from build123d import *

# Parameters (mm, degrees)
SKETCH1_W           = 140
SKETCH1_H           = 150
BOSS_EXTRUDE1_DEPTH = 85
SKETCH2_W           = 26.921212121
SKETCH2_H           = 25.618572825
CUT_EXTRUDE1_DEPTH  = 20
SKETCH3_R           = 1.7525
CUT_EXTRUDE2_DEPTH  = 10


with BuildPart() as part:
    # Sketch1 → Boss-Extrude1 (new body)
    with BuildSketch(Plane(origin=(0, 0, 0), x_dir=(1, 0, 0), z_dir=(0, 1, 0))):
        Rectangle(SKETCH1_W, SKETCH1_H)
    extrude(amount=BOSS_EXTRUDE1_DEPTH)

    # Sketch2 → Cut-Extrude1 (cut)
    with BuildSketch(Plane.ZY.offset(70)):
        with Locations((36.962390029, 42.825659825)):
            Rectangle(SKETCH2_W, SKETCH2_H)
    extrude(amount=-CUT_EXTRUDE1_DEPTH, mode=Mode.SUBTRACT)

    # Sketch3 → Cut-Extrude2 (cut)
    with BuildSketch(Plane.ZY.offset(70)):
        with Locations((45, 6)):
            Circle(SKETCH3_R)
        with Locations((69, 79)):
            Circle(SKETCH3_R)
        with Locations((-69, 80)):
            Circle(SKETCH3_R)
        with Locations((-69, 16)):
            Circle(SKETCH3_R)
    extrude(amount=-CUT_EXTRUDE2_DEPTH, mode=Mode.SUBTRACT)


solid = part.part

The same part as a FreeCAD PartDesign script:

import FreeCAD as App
import Part
import Sketcher

doc = App.newDocument("Part")
body = doc.addObject("PartDesign::Body", "Body")

# Sketch on XZ plane
sketch1 = body.newObject("Sketcher::SketchObject", "Sketch")
sketch1.AttachmentSupport = (doc.getObject("XZ_Plane"), [""])
sketch1.MapMode = "FlatFace"
sketch1.addGeometry([
    Part.LineSegment(App.Vector(-70, -75, 0), App.Vector(-70, 75, 0)),
    Part.LineSegment(App.Vector(-70, 75, 0), App.Vector(70, 75, 0)),
    Part.LineSegment(App.Vector(70, 75, 0), App.Vector(70, -75, 0)),
    Part.LineSegment(App.Vector(70, -75, 0), App.Vector(-70, -75, 0)),
], False)
sketch1.addConstraint([
    Sketcher.Constraint("Coincident", 0, 2, 1, 1),
    Sketcher.Constraint("Coincident", 1, 2, 2, 1),
    Sketcher.Constraint("Coincident", 2, 2, 3, 1),
    Sketcher.Constraint("Coincident", 3, 2, 0, 1),
    Sketcher.Constraint("Vertical", 0),
    Sketcher.Constraint("Horizontal", 1),
    Sketcher.Constraint("Vertical", 2),
    Sketcher.Constraint("Horizontal", 3),
    Sketcher.Constraint("Symmetric", 0, 2, 2, 2, -1, 1),
    Sketcher.Constraint("DistanceX", 1, 1, 1, 2, 140.0),
    Sketcher.Constraint("DistanceY", 0, 1, 0, 2, 150.0),
])
pad1 = body.newObject("PartDesign::Pad", "Pad")
pad1.Profile = sketch1
pad1.Length = 85
pad1.Reversed = True

# Sketch on YZ plane
sketch2 = body.newObject("Sketcher::SketchObject", "Sketch001")
sketch2.AttachmentSupport = (doc.getObject("YZ_Plane"), [""])
sketch2.MapMode = "FlatFace"
sketch2.AttachmentOffset = App.Placement(App.Vector(0, 0, -70), App.Rotation())
sketch2.addGeometry([
    Part.LineSegment(App.Vector(55.634946, 23.501784, 0), App.Vector(30.016373, 23.501784, 0)),
    Part.LineSegment(App.Vector(30.016373, 23.501784, 0), App.Vector(30.016373, 50.422996, 0)),
    Part.LineSegment(App.Vector(30.016373, 50.422996, 0), App.Vector(55.634946, 50.422996, 0)),
    Part.LineSegment(App.Vector(55.634946, 50.422996, 0), App.Vector(55.634946, 23.501784, 0)),
], False)
sketch2.addConstraint([
    Sketcher.Constraint("Coincident", 0, 2, 1, 1),
    Sketcher.Constraint("Coincident", 1, 2, 2, 1),
    Sketcher.Constraint("Coincident", 2, 2, 3, 1),
    Sketcher.Constraint("Coincident", 3, 2, 0, 1),
    Sketcher.Constraint("Horizontal", 0),
    Sketcher.Constraint("Vertical", 1),
    Sketcher.Constraint("Horizontal", 2),
    Sketcher.Constraint("Vertical", 3),
    Sketcher.Constraint("DistanceX", 0, 2, 0, 1, 25.618573),
    Sketcher.Constraint("DistanceY", 1, 1, 1, 2, 26.921212),
    Sketcher.Constraint("DistanceX", -1, 1, 0, 2, 30.016373),
    Sketcher.Constraint("DistanceY", -1, 1, 0, 2, 23.501784),
])
pocket1 = body.newObject("PartDesign::Pocket", "Pocket")
pocket1.Profile = sketch2
pocket1.Length = 20
pocket1.Reversed = True

# Sketch on YZ plane
sketch3 = body.newObject("Sketcher::SketchObject", "Sketch002")
sketch3.AttachmentSupport = (doc.getObject("YZ_Plane"), [""])
sketch3.MapMode = "FlatFace"
sketch3.AttachmentOffset = App.Placement(App.Vector(0, 0, -70), App.Rotation())
sketch3.addGeometry([
    Part.Circle(App.Vector(6, 45, 0), App.Vector(0, 0, 1), 1.7525),
    Part.Circle(App.Vector(79, 69, 0), App.Vector(0, 0, 1), 1.7525),
    Part.Circle(App.Vector(80, -69, 0), App.Vector(0, 0, 1), 1.7525),
    Part.Circle(App.Vector(16, -69, 0), App.Vector(0, 0, 1), 1.7525),
], False)
sketch3.addConstraint([
    Sketcher.Constraint("Equal", 0, 1),
    Sketcher.Constraint("Equal", 1, 2),
    Sketcher.Constraint("Equal", 2, 3),
    Sketcher.Constraint("Horizontal", 2, 3, 3, 3),
    Sketcher.Constraint("Diameter", 0, 3.505),
    Sketcher.Constraint("DistanceX", -1, 1, 0, 3, 6.0),
    Sketcher.Constraint("DistanceY", -1, 1, 0, 3, 45.0),
    Sketcher.Constraint("DistanceX", -1, 1, 1, 3, 79.0),
    Sketcher.Constraint("DistanceY", -1, 1, 1, 3, 69.0),
    Sketcher.Constraint("DistanceX", -1, 1, 2, 3, 80.0),
    Sketcher.Constraint("DistanceY", 2, 3, -1, 1, 69.0),
    Sketcher.Constraint("DistanceX", -1, 1, 3, 3, 16.0),
])
pocket2 = body.newObject("PartDesign::Pocket", "Pocket001")
pocket2.Profile = sketch3
pocket2.Length = 10
pocket2.Reversed = True

doc.recompute()
